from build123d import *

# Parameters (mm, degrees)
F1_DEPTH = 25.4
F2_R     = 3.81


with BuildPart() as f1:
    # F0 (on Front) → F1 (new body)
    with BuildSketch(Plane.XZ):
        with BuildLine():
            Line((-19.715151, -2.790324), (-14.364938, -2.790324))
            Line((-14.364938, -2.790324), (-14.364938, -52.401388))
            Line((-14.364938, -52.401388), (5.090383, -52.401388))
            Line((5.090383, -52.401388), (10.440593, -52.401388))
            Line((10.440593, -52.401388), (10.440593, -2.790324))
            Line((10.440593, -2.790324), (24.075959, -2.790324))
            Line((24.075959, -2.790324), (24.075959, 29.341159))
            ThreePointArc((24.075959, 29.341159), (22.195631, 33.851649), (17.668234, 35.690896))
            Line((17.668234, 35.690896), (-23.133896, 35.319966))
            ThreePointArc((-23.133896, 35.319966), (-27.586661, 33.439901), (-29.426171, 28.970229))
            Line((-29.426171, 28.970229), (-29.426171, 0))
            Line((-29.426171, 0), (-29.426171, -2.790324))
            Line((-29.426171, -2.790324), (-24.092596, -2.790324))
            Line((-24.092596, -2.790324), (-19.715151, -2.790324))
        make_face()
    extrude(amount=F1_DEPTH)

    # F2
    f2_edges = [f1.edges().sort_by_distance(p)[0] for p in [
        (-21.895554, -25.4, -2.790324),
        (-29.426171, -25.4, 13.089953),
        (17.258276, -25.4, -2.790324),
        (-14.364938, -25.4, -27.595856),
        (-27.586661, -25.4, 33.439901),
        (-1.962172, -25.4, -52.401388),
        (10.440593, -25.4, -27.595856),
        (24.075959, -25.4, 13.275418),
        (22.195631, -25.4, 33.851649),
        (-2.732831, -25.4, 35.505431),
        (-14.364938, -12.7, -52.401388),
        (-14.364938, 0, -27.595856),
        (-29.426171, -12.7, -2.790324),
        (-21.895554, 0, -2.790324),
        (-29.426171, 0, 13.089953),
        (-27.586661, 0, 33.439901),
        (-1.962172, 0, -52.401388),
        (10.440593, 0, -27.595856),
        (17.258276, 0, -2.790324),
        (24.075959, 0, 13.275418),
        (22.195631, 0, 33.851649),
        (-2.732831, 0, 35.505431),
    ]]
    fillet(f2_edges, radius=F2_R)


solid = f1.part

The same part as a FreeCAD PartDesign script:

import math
import FreeCAD as App
import Part
import Sketcher
from FreeCAD import Vector
Q = App.Units.Quantity


def edges_at(feature, points):
    """Names of the edges that pass closest to the given points."""
    edges = feature.Shape.Edges
    near = lambda p: min(range(len(edges)), key=lambda i: edges[i].distToShape(Part.Vertex(*p))[0])
    return sorted({f"Edge{near(p) + 1}" for p in points})

doc = App.newDocument("Part")
body = doc.addObject("PartDesign::Body", "Body")

# Sketch on XZ plane
sketch1 = body.newObject("Sketcher::SketchObject", "Sketch")
sketch1.AttachmentSupport = (doc.getObject("XZ_Plane"), [""])
sketch1.MapMode = "FlatFace"
sketch1.addGeometry([
    Part.LineSegment(Vector(-14, -3, 0), Vector(-14, -52, 0)),  # 0
    Part.LineSegment(Vector(-14, -52, 0), Vector(10, -52, 0)),  # 1
    Part.LineSegment(Vector(10, -52, 0), Vector(10, -3, 0)),  # 2
    Part.LineSegment(Vector(10, -3, 0), Vector(24, -3, 0)),  # 3
    Part.LineSegment(Vector(24, -3, 0), Vector(24, 29, 0)),  # 4
    Part.ArcOfCircle(Part.Circle(Vector(18, 29, 0), Vector(0, 0, 1), 6), math.radians(0), math.radians(91)),  # 5
    Part.LineSegment(Vector(18, 36, 0), Vector(-23, 35, 0)),  # 6
    Part.ArcOfCircle(Part.Circle(Vector(-23, 29, 0), Vector(0, 0, 1), 6), math.radians(91), math.radians(180)),  # 7
    Part.LineSegment(Vector(-29, 29, 0), Vector(-29, -3, 0)),  # 8
    Part.LineSegment(Vector(-29, -3, 0), Vector(-14, -3, 0)),  # 9
], False)
sketch1.addConstraint([
    Sketcher.Constraint("Coincident", 0, 2, 1, 1),
    Sketcher.Constraint("Coincident", 1, 2, 2, 1),
    Sketcher.Constraint("Coincident", 2, 2, 3, 1),
    Sketcher.Constraint("Coincident", 3, 2, 4, 1),
    Sketcher.Constraint("Tangent", 4, 2, 5, 1),
    Sketcher.Constraint("Tangent", 5, 2, 6, 1),
    Sketcher.Constraint("Tangent", 6, 2, 7, 1),
    Sketcher.Constraint("Tangent", 7, 2, 8, 1),
    Sketcher.Constraint("Coincident", 8, 2, 9, 1),
    Sketcher.Constraint("Coincident", 9, 2, 0, 1),
    Sketcher.Constraint("Vertical", 0),
    Sketcher.Constraint("Horizontal", 1),
    Sketcher.Constraint("Vertical", 2),
    Sketcher.Constraint("Horizontal", 3),
    Sketcher.Constraint("Vertical", 4),
    Sketcher.Constraint("Vertical", 8),
    Sketcher.Constraint("Horizontal", 9),
    Sketcher.Constraint("Equal", 5, 7),
    Sketcher.Constraint("Horizontal", 3, 2, 8, 2),
    Sketcher.Constraint("Radius", 5, Q("0.25 in")),
    Sketcher.Constraint("DistanceX", 1, 1, 1, 2, Q("24.805531 mm")),
    Sketcher.Constraint("DistanceX", 3, 1, 3, 2, Q("13.635366 mm")),
    Sketcher.Constraint("DistanceX", 9, 1, 9, 2, Q("15.061233 mm")),
    Sketcher.Constraint("DistanceY", 0, 2, 0, 1, Q("49.611064 mm")),
    Sketcher.Constraint("DistanceY", 4, 1, 4, 2, Q("32.131483 mm")),
    Sketcher.Constraint("DistanceY", 8, 2, 8, 1, Q("31.760553 mm")),
    Sketcher.Constraint("DistanceX", 7, 3, -1, 1, Q("23.07617 mm")),
    Sketcher.Constraint("DistanceY", -1, 1, 4, 2, Q("29.341159 mm")),
])
pad1 = body.newObject("PartDesign::Pad", "Pad")
pad1.Profile = sketch1
pad1.Length = Q("1 in")
doc.recompute()

fillet = body.newObject("PartDesign::Fillet", "Fillet")
fillet.Base = (pad1, edges_at(pad1, [
    (-21.896, -25.4, -2.79),
    (-29.426, -25.4, 13.09),
    (17.258, -25.4, -2.79),
    (-14.365, -25.4, -27.596),
    (-27.587, -25.4, 33.44),
    (-1.962, -25.4, -52.401),
    (10.441, -25.4, -27.596),
    (24.076, -25.4, 13.275),
    (22.196, -25.4, 33.852),
    (-2.733, -25.4, 35.505),
    (-14.365, -12.7, -52.401),
    (-14.365, 0, -27.596),
    (-29.426, -12.7, -2.79),
    (-21.896, 0, -2.79),
    (-29.426, 0, 13.09),
    (-27.587, 0, 33.44),
    (-1.962, 0, -52.401),
    (10.441, 0, -27.596),
    (17.258, 0, -2.79),
    (24.076, 0, 13.275),
    (22.196, 0, 33.852),
    (-2.733, 0, 35.505),
]))
fillet.Radius = Q("0.15 in")

doc.recompute()
